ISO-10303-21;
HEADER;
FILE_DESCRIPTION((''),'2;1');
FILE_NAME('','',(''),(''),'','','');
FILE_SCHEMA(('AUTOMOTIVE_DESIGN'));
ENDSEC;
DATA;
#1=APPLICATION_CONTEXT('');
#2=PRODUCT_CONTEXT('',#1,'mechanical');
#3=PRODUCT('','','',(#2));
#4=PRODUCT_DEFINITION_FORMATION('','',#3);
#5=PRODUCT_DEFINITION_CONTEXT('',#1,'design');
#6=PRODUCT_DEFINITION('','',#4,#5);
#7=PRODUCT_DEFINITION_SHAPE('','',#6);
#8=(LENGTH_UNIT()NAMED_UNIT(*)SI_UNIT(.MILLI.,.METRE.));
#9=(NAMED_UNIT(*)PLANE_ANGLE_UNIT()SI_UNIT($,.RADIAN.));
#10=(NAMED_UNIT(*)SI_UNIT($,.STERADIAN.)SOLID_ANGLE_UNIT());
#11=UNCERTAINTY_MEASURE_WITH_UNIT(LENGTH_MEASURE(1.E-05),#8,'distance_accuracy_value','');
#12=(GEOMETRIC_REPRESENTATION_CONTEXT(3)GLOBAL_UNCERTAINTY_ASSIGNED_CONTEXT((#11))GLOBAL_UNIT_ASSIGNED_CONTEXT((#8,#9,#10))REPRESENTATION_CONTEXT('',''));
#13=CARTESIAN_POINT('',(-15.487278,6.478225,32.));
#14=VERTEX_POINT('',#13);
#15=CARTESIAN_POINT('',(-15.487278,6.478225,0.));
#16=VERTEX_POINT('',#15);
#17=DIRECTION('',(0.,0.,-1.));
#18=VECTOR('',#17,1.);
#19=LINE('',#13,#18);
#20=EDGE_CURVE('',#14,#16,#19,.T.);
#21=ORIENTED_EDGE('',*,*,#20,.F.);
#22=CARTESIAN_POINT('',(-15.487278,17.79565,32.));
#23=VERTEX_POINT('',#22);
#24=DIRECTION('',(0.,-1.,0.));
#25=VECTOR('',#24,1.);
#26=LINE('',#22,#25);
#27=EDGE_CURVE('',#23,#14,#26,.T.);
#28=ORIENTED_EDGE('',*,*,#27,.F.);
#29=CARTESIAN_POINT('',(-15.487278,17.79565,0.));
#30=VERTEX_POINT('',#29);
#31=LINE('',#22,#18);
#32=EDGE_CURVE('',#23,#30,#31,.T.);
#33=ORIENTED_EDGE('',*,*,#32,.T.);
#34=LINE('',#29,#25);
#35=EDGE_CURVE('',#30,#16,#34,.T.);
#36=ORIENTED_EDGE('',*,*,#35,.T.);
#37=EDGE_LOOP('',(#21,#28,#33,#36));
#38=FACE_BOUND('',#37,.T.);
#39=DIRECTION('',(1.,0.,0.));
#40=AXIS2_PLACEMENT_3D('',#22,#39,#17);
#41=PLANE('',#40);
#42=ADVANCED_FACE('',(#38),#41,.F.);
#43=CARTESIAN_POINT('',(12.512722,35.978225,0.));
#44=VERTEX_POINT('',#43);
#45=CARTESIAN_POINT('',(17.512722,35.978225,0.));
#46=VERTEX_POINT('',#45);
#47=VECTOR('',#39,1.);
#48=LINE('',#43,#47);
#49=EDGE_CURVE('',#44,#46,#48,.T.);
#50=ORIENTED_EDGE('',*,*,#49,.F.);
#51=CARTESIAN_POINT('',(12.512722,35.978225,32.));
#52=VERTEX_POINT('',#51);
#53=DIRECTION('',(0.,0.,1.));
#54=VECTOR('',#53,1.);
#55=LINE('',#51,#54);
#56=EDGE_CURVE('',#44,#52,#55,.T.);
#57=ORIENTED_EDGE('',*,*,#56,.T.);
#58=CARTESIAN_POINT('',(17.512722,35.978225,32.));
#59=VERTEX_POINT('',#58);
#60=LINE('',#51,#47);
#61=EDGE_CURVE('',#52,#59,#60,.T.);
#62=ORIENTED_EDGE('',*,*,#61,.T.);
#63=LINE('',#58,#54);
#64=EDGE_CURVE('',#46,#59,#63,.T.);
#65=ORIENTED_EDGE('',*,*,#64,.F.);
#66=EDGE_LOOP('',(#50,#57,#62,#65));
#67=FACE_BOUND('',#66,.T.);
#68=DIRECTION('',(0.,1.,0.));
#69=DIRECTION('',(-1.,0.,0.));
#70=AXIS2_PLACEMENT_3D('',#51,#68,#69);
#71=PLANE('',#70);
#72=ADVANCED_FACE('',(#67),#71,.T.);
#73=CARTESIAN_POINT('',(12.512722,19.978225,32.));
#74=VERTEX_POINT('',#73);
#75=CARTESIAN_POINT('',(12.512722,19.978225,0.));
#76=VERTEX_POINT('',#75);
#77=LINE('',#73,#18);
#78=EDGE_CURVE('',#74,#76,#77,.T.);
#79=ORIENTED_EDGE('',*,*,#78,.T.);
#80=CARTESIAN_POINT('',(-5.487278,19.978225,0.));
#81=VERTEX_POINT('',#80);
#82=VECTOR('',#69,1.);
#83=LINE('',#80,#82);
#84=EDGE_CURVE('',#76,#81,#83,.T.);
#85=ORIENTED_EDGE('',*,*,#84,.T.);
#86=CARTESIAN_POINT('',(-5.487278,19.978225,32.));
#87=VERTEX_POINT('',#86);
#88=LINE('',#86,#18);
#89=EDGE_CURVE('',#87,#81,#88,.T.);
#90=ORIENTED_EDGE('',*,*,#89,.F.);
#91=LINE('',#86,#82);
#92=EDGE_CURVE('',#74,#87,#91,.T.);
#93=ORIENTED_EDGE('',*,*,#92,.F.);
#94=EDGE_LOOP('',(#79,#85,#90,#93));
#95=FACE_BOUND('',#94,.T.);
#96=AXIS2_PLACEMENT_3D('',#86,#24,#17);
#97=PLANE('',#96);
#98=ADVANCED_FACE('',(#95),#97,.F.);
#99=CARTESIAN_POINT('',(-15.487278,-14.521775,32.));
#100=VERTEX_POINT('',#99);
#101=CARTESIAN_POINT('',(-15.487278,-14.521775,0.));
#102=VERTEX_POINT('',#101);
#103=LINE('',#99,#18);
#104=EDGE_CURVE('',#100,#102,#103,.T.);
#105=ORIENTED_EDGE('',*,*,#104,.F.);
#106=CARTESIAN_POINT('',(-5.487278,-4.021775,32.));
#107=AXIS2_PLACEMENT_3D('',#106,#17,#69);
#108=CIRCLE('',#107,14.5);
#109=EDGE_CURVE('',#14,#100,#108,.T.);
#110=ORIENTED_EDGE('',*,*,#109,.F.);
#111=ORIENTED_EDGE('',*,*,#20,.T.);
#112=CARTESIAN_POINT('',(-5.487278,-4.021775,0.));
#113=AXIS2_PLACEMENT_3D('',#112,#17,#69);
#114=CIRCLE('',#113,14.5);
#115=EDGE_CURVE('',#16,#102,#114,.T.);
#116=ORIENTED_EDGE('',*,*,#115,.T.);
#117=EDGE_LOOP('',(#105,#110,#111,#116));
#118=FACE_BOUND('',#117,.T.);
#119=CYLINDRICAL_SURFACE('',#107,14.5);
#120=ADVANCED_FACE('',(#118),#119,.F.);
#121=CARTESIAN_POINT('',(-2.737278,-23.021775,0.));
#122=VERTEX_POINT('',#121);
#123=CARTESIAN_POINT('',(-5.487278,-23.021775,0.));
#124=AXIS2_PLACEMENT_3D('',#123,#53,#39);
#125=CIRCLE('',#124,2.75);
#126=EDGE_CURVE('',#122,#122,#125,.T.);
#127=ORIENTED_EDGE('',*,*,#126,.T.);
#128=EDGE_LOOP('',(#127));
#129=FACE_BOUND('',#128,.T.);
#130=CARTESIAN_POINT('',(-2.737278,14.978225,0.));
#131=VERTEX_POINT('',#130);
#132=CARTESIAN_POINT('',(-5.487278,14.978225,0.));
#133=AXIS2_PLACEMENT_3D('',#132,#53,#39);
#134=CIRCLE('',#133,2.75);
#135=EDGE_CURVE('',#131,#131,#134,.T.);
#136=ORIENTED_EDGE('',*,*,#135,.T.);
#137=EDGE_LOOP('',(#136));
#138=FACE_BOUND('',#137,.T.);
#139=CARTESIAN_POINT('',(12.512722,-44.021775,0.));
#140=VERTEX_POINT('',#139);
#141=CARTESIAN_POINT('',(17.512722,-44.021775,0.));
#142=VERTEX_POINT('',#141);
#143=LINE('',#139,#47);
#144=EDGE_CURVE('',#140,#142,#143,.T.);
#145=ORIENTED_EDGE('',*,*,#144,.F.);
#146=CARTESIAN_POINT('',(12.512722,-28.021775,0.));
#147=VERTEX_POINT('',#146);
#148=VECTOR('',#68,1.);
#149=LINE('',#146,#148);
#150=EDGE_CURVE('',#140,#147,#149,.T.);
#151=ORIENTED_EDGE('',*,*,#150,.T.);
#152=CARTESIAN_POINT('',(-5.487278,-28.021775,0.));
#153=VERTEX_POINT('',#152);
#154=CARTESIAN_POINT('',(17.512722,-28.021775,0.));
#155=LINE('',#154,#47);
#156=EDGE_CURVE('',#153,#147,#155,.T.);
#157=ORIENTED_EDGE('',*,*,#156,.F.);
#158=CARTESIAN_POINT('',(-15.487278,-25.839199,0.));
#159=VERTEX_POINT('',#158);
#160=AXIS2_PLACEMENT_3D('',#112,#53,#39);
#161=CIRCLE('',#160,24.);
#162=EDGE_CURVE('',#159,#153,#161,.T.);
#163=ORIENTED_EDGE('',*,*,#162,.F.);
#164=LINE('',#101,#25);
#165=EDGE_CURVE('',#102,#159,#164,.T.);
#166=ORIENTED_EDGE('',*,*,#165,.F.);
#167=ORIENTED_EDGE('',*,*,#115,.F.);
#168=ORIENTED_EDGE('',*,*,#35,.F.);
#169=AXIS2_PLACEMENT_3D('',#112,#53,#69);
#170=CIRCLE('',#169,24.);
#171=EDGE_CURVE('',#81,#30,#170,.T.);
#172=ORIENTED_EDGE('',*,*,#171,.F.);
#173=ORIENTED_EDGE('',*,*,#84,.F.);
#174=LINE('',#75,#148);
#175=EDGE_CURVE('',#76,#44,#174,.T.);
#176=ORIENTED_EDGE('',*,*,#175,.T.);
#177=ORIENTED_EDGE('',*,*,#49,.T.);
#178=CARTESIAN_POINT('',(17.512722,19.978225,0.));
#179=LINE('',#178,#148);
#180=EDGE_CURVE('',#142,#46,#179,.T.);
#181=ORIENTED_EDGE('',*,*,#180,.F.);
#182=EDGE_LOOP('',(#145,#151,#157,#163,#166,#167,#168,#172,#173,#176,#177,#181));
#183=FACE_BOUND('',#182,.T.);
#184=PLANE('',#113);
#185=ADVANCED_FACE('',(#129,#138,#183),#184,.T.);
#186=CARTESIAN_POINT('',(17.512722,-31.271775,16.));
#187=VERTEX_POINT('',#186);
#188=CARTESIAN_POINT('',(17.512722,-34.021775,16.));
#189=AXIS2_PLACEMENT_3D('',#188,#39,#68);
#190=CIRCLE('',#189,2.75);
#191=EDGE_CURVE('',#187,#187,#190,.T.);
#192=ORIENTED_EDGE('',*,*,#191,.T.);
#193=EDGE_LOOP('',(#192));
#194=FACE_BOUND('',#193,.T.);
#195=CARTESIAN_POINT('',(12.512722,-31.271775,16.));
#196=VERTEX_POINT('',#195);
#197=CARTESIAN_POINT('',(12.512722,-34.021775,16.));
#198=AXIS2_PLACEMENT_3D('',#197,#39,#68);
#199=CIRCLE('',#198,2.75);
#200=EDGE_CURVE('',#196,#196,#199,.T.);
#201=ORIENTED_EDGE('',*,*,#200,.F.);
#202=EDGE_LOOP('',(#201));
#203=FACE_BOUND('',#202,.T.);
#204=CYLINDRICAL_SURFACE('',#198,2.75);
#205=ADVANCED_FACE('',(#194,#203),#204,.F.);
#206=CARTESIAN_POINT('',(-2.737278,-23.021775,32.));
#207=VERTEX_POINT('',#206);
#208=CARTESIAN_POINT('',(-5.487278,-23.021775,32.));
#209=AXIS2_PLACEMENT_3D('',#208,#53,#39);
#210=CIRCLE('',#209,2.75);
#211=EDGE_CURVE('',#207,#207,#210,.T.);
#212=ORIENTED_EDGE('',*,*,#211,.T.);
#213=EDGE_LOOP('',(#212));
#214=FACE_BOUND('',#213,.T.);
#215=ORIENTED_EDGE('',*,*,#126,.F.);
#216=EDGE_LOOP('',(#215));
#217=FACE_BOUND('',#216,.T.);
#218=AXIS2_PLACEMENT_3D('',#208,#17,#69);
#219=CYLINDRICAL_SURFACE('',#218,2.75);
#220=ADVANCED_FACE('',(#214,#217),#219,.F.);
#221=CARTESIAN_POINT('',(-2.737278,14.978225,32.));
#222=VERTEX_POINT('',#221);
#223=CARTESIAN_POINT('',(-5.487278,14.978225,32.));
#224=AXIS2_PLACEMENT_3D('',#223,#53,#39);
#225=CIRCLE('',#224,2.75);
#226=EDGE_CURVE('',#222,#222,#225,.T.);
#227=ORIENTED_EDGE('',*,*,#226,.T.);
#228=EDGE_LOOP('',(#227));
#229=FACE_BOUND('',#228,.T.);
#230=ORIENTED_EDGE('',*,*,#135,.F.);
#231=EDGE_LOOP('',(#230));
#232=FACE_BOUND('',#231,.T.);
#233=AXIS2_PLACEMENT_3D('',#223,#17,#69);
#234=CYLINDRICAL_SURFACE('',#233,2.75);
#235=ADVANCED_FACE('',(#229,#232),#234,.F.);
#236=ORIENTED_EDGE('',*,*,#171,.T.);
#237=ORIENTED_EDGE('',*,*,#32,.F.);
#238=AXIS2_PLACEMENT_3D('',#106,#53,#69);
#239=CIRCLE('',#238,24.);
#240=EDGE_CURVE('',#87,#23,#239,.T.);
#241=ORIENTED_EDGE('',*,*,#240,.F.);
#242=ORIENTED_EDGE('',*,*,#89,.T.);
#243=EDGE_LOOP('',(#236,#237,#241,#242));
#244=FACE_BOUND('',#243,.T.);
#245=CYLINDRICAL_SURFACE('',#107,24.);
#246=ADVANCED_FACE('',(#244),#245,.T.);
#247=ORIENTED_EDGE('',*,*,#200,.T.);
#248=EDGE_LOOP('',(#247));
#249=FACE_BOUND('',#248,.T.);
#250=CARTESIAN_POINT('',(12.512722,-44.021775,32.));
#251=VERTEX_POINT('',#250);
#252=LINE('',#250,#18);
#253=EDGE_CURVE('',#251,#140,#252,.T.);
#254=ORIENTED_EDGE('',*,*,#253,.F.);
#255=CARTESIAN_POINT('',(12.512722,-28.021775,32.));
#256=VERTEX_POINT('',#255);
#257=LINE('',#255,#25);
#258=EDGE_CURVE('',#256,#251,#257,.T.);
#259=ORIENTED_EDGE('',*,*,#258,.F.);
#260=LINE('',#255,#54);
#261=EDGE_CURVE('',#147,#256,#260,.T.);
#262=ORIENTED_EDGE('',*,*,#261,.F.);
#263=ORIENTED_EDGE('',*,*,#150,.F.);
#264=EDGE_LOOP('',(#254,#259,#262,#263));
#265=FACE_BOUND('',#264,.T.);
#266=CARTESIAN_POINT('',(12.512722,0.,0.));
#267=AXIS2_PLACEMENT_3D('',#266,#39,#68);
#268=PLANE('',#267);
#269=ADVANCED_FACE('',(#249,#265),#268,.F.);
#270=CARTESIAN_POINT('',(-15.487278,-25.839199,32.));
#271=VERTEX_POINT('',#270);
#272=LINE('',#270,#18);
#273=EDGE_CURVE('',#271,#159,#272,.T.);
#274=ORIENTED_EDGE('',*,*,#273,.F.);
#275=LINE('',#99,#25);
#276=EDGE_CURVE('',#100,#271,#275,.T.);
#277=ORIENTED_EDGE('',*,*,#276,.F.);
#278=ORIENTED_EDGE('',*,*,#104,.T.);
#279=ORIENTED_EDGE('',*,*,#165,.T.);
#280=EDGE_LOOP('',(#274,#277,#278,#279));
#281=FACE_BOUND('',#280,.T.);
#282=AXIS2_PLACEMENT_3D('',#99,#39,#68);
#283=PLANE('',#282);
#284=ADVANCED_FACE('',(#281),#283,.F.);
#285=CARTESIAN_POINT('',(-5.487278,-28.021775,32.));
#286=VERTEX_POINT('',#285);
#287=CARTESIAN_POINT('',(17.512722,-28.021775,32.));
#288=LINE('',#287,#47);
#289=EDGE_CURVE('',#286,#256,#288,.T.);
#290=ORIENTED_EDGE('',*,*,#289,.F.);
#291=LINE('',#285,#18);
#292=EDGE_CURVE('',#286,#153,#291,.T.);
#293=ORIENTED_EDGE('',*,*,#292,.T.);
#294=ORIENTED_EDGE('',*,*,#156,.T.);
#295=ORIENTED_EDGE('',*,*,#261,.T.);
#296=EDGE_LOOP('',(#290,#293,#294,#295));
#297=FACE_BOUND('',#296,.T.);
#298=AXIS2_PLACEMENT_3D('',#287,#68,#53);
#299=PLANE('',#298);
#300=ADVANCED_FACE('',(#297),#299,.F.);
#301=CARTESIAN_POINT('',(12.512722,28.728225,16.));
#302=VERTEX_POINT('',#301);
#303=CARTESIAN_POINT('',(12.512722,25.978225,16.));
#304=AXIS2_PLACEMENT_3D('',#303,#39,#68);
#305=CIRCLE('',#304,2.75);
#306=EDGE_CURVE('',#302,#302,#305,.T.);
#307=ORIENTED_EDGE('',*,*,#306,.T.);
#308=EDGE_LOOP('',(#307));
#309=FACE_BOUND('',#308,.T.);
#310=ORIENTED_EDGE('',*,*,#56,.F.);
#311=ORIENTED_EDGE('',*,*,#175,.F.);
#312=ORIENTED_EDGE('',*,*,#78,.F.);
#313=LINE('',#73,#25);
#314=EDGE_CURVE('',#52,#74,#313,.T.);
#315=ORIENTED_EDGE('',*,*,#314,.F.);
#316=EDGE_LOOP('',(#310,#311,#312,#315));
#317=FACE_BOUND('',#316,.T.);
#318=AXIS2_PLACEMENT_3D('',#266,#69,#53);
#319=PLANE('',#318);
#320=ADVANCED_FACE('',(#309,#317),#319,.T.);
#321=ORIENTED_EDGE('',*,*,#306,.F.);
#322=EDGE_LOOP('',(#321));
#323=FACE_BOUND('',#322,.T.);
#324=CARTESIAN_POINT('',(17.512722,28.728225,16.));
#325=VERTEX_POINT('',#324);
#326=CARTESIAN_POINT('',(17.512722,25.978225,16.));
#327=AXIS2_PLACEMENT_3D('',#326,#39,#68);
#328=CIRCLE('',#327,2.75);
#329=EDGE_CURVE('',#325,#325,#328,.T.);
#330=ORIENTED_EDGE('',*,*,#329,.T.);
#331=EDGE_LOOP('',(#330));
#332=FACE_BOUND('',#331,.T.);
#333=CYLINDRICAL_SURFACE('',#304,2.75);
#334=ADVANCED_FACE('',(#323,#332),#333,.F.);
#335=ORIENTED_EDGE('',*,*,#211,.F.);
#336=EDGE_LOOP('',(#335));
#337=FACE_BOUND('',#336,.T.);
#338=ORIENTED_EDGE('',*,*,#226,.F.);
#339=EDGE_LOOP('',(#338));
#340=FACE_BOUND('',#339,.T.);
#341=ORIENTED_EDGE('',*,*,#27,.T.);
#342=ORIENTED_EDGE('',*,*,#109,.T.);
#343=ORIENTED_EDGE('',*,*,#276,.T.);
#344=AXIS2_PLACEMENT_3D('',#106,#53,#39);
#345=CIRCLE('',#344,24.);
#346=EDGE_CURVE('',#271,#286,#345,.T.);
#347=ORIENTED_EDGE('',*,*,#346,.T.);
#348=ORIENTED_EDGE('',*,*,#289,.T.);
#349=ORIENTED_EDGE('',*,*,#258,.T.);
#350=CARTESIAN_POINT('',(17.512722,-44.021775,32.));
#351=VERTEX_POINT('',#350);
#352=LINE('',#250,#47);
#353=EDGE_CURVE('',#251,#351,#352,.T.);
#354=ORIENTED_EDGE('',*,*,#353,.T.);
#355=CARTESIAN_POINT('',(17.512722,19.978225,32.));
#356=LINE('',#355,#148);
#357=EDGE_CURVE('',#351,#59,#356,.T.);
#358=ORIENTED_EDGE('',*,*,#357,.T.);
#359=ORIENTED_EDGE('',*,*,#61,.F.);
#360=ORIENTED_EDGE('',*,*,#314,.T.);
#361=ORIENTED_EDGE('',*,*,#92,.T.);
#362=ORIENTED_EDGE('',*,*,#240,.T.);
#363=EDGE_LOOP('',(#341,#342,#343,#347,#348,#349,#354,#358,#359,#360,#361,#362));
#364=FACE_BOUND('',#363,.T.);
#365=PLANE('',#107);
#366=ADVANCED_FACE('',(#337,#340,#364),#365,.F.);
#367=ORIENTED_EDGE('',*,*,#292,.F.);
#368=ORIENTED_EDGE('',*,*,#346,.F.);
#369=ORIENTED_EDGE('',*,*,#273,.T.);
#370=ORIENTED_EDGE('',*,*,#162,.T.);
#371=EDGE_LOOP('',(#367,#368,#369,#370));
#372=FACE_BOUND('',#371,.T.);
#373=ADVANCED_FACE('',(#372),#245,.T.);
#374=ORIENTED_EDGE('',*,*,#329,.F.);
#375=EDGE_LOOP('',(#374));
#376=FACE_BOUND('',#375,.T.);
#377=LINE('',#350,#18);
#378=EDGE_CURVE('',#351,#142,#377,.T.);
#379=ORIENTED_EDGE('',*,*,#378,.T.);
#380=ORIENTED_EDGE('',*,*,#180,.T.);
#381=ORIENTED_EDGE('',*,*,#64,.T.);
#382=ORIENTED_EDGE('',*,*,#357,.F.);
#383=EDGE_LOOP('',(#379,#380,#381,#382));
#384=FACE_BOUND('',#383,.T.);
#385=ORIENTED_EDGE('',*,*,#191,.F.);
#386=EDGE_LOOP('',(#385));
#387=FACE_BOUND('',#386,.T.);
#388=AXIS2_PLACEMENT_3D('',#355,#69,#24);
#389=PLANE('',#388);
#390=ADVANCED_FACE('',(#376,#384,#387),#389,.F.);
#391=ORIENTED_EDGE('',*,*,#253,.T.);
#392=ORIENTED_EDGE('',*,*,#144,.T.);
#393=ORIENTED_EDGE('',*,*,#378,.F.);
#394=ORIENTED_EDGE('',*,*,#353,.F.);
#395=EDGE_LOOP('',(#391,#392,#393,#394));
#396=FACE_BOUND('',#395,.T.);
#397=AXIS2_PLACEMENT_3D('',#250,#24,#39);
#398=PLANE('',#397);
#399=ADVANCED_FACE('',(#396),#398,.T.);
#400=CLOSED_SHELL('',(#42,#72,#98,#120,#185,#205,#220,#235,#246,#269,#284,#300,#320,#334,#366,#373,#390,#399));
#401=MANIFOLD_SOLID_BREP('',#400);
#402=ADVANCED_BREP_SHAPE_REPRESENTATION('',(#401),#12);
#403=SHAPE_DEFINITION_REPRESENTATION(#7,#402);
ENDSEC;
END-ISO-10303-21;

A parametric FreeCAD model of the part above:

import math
import FreeCAD as App
import Part
import Sketcher
from FreeCAD import Vector


def add_polygon(sketch, points):
    """Adds a closed chain of lines whose ends are joined by coincident constraints."""
    first, n = sketch.GeometryCount, len(points)
    for a, b in zip(points, points[1:] + points[:1]):
        sketch.addGeometry(Part.LineSegment(App.Vector(*a, 0), App.Vector(*b, 0)), False)
    for i in range(n):
        sketch.addConstraint(Sketcher.Constraint("Coincident", first + i, 2, first + (i + 1) % n, 1))

doc = App.newDocument("Part")
body = doc.addObject("PartDesign::Body", "Body")

sketch1 = doc.addObject("Sketcher::SketchObject", "Sketch")
body.addObject(sketch1)
sketch1.AttachmentSupport = (doc.XY_Plane, [""])
sketch1.MapMode = "FlatFace"
sketch1.addGeometry([
    Part.LineSegment(Vector(17.5, 20, 0), Vector(-5.5, 20, 0)),
    Part.ArcOfCircle(Part.Circle(Vector(-5.5, -4, 0), Vector(0, 0, 1), 24), math.radians(90), math.radians(115)),
    Part.LineSegment(Vector(-15.5, 17.8, 0), Vector(-15.5, 6.5, 0)),
    Part.ArcOfCircle(Part.Circle(Vector(-5.5, -4, 0), Vector(0, 0, 1), 14.5), math.radians(-134), math.radians(134)),
    Part.LineSegment(Vector(-15.5, -14.5, 0), Vector(-15.5, -25.8, 0)),
    Part.ArcOfCircle(Part.Circle(Vector(-5.5, -4, 0), Vector(0, 0, 1), 24), math.radians(-115), math.radians(-90)),
    Part.LineSegment(Vector(-5.5, -28, 0), Vector(17.5, -28, 0)),
    Part.LineSegment(Vector(17.5, -28, 0), Vector(17.5, 20, 0)),
    Part.Circle(Vector(-5.5, -23, 0), Vector(0, 0, 1), 2.8),
    Part.Circle(Vector(-5.5, 15, 0), Vector(0, 0, 1), 2.8),
], False)
sketch1.addConstraint([
    Sketcher.Constraint("Tangent", 0, 2, 1, 1),
    Sketcher.Constraint("Coincident", 1, 2, 2, 1),
    Sketcher.Constraint("Coincident", 2, 2, 3, 2),
    Sketcher.Constraint("Coincident", 3, 1, 4, 1),
    Sketcher.Constraint("Coincident", 4, 2, 5, 1),
    Sketcher.Constraint("Tangent", 5, 2, 6, 1),
    Sketcher.Constraint("Coincident", 6, 2, 7, 1),
    Sketcher.Constraint("Coincident", 7, 2, 0, 1),
    Sketcher.Constraint("Horizontal", 0),
    Sketcher.Constraint("Vertical", 2),
    Sketcher.Constraint("Vertical", 4),
    Sketcher.Constraint("Horizontal", 6),
    Sketcher.Constraint("Vertical", 7),
    Sketcher.Constraint("Coincident", 3, 3, 1, 3),
    Sketcher.Constraint("Coincident", 5, 3, 1, 3),
    Sketcher.Constraint("Equal", 1, 5),
    Sketcher.Constraint("Equal", 8, 9),
    Sketcher.Constraint("Vertical", 5, 3, 8, 3),
    Sketcher.Constraint("Vertical", 8, 3, 9, 3),
    Sketcher.Constraint("Vertical", 2, 2, 3, 1),
    Sketcher.Constraint("Radius", 1, 24.0),
    Sketcher.Constraint("Diameter", 8, 5.5),
    Sketcher.Constraint("Radius", 3, 14.5),
    Sketcher.Constraint("DistanceX", 0, 2, 0, 1, 23.0),
    Sketcher.Constraint("DistanceY", 8, 3, 3, 3, 19.0),
    Sketcher.Constraint("DistanceY", 5, 3, 9, 3, 19.0),
    Sketcher.Constraint("DistanceX", 1, 2, 0, 2, 10.0),
    Sketcher.Constraint("DistanceY", 4, 2, -1, 1, 25.839199),
    Sketcher.Constraint("DistanceX", 1, 3, -1, 1, 5.487278),
])
pad1 = doc.addObject("PartDesign::Pad", "Pad")
body.addObject(pad1)
pad1.Profile = sketch1
pad1.Length = 32

sketch2 = doc.addObject("Sketcher::SketchObject", "Sketch001")
body.addObject(sketch2)
sketch2.AttachmentSupport = (doc.YZ_Plane, [""])
sketch2.MapMode = "FlatFace"
sketch2.AttachmentOffset = App.Placement(Vector(0, 0, 17.512722), App.Rotation())
add_polygon(sketch2, [(36, 32), (20, 32), (20, 0), (36, 0)])
sketch2.addGeometry(Part.Circle(Vector(26, 16, 0), Vector(0, 0, 1), 2.8), False)
add_polygon(sketch2, [(-28, 32), (-44, 32), (-44, 0), (-28, 0)])
sketch2.addGeometry(Part.Circle(Vector(-34, 16, 0), Vector(0, 0, 1), 2.8), False)
sketch2.addConstraint([
    Sketcher.Constraint("Horizontal", 0),
    Sketcher.Constraint("Vertical", 1),
    Sketcher.Constraint("Horizontal", 2),
    Sketcher.Constraint("Vertical", 3),
    Sketcher.Constraint("Horizontal", 5),
    Sketcher.Constraint("Vertical", 6),
    Sketcher.Constraint("Horizontal", 7),
    Sketcher.Constraint("Vertical", 8),
    Sketcher.Constraint("Equal", 4, 9),
    Sketcher.Constraint("PointOnObject", 1, 2, -1),
    Sketcher.Constraint("PointOnObject", 6, 2, -1),
    Sketcher.Constraint("Horizontal", 4, 3, 9, 3),
    Sketcher.Constraint("Horizontal", 3, 2, 5, 2),
    Sketcher.Constraint("Equal", 2, 5),
    Sketcher.Constraint("Diameter", 4, 5.5),
    Sketcher.Constraint("DistanceX", 0, 2, 0, 1, 16.0),
    Sketcher.Constraint("DistanceY", 1, 2, 1, 1, 32.0),
    Sketcher.Constraint("DistanceY", -1, 1, 4, 3, 16.0),
    Sketcher.Constraint("DistanceX", 9, 3, 4, 3, 60.0),
    Sketcher.Constraint("DistanceX", 0, 2, 4, 3, 6.0),
    Sketcher.Constraint("DistanceX", 5, 2, 9, 3, 10.0),
    Sketcher.Constraint("DistanceX", -1, 1, 4, 3, 25.978225),
])
pad2 = doc.addObject("PartDesign::Pad", "Pad001")
body.addObject(pad2)
pad2.Profile = sketch2
pad2.Length = 5
pad2.Reversed = True

doc.recompute()
